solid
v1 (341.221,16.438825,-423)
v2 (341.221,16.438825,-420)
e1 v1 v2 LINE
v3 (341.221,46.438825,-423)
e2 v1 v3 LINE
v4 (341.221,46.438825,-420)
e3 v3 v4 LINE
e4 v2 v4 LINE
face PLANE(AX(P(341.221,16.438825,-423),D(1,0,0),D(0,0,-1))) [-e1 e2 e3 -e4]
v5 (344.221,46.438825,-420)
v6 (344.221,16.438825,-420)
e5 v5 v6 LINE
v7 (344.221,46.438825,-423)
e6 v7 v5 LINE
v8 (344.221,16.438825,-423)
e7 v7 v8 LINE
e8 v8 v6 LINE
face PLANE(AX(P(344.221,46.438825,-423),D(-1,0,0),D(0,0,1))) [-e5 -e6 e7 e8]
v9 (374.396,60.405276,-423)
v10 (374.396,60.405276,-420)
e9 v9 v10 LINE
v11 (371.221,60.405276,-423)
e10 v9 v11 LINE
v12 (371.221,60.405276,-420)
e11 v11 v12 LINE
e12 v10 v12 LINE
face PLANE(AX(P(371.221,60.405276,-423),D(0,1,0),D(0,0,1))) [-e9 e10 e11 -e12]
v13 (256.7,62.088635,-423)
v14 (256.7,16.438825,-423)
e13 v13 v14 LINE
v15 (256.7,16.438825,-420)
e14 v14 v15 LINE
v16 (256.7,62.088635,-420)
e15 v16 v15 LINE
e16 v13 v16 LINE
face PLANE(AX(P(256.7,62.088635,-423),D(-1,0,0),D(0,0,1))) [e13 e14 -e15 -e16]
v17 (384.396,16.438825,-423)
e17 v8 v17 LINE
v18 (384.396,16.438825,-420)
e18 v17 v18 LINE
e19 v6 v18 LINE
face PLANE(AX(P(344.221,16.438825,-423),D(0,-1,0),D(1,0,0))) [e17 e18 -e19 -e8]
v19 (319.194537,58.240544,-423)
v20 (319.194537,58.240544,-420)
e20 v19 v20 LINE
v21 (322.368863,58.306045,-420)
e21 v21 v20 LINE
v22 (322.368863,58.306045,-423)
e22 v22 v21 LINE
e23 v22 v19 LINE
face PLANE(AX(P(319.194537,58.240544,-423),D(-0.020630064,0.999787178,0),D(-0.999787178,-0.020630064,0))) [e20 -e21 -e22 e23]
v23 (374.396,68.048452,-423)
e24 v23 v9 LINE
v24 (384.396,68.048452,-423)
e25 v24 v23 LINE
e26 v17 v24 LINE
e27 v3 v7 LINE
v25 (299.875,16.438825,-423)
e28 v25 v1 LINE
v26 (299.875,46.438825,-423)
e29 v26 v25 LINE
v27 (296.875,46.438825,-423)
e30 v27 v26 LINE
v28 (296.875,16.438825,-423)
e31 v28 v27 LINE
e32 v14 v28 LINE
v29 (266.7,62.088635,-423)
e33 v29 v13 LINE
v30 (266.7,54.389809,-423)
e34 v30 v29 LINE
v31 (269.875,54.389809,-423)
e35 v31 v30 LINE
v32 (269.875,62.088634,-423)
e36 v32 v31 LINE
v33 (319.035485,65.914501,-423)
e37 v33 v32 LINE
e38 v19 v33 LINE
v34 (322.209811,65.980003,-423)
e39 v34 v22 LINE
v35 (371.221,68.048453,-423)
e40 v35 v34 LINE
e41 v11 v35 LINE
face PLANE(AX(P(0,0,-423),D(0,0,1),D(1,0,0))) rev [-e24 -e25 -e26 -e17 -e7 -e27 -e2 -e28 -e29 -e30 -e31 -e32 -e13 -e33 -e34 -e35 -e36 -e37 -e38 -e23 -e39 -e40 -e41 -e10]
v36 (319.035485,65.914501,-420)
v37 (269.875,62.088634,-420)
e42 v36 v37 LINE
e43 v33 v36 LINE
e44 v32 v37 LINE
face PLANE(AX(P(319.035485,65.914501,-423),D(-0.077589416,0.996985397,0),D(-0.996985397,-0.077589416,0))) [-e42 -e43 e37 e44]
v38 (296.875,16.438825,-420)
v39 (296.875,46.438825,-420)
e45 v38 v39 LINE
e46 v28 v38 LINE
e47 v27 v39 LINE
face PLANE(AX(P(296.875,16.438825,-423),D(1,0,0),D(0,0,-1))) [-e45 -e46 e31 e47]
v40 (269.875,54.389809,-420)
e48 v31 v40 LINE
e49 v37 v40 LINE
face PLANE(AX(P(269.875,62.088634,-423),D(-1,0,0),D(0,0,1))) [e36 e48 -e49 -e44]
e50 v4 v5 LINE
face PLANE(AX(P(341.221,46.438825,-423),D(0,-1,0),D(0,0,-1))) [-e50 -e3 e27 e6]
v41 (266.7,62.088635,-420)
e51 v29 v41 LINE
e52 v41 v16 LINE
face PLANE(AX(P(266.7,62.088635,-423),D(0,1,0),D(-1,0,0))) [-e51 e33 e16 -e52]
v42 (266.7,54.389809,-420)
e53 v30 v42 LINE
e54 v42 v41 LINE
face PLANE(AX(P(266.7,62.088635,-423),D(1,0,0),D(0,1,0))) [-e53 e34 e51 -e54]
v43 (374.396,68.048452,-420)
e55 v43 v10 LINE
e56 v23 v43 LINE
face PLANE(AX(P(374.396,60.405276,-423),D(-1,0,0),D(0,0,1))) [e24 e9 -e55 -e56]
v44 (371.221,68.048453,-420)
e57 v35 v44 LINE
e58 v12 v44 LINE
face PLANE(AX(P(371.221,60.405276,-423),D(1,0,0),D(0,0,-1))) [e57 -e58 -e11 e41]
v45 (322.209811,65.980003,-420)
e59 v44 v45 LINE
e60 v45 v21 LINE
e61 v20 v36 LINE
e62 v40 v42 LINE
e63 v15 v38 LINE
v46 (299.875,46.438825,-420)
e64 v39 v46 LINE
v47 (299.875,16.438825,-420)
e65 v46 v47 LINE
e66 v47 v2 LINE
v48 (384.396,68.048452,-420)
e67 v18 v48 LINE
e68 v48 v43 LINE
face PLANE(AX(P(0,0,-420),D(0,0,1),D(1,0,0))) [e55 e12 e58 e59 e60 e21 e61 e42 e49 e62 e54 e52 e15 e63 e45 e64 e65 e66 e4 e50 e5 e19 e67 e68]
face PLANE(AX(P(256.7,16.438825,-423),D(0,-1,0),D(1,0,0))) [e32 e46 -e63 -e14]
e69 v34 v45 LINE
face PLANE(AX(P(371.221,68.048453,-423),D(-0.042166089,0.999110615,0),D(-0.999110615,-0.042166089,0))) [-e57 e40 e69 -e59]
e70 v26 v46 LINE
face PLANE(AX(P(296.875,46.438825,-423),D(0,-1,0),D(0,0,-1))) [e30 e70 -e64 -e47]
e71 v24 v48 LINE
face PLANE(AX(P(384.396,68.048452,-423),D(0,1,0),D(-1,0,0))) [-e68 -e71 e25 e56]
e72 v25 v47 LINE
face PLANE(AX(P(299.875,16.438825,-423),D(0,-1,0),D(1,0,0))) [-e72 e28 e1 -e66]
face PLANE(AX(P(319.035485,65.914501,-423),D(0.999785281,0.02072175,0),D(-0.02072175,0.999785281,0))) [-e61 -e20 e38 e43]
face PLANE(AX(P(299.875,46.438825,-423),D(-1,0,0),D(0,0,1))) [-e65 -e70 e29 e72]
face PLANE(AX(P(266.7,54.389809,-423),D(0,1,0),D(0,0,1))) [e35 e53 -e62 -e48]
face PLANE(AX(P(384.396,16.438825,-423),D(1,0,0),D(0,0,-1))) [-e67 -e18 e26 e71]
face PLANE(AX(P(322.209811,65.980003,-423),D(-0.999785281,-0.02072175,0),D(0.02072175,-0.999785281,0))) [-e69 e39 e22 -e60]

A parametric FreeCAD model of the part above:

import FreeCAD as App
import Part
import Sketcher
from FreeCAD import Vector
Q = App.Units.Quantity

doc = App.newDocument("Part")
body = doc.addObject("PartDesign::Body", "Body")

# Sketch on XY plane
sketch1 = body.newObject("Sketcher::SketchObject", "Sketch")
sketch1.AttachmentSupport = (doc.getObject("XY_Plane"), [""])
sketch1.MapMode = "FlatFace"
sketch1.AttachmentOffset = App.Placement(Vector(0, 0, -420), App.Rotation())
sketch1.addGeometry([
    Part.LineSegment(Vector(374.4, 60.4, 0), Vector(371.2, 60.4, 0)),  # 0
    Part.LineSegment(Vector(371.2, 60.4, 0), Vector(371.2, 68, 0)),  # 1
    Part.LineSegment(Vector(371.2, 68, 0), Vector(322.2, 66, 0)),  # 2
    Part.LineSegment(Vector(322.2, 66, 0), Vector(322.4, 58.3, 0)),  # 3
    Part.LineSegment(Vector(322.4, 58.3, 0), Vector(319.2, 58.2, 0)),  # 4
    Part.LineSegment(Vector(319.2, 58.2, 0), Vector(319, 65.9, 0)),  # 5
    Part.LineSegment(Vector(319, 65.9, 0), Vector(269.9, 62.1, 0)),  # 6
    Part.LineSegment(Vector(269.9, 62.1, 0), Vector(269.9, 54.4, 0)),  # 7
    Part.LineSegment(Vector(269.9, 54.4, 0), Vector(266.7, 54.4, 0)),  # 8
    Part.LineSegment(Vector(266.7, 54.4, 0), Vector(266.7, 62.1, 0)),  # 9
    Part.LineSegment(Vector(266.7, 62.1, 0), Vector(256.7, 62.1, 0)),  # 10
    Part.LineSegment(Vector(256.7, 62.1, 0), Vector(256.7, 16.4, 0)),  # 11
    Part.LineSegment(Vector(256.7, 16.4, 0), Vector(296.9, 16.4, 0)),  # 12
    Part.LineSegment(Vector(296.9, 16.4, 0), Vector(296.9, 46.4, 0)),  # 13
    Part.LineSegment(Vector(296.9, 46.4, 0), Vector(299.9, 46.4, 0)),  # 14
    Part.LineSegment(Vector(299.9, 46.4, 0), Vector(299.9, 16.4, 0)),  # 15
    Part.LineSegment(Vector(299.9, 16.4, 0), Vector(341.2, 16.4, 0)),  # 16
    Part.LineSegment(Vector(341.2, 16.4, 0), Vector(341.2, 46.4, 0)),  # 17
    Part.LineSegment(Vector(341.2, 46.4, 0), Vector(344.2, 46.4, 0)),  # 18
    Part.LineSegment(Vector(344.2, 46.4, 0), Vector(344.2, 16.4, 0)),  # 19
    Part.LineSegment(Vector(344.2, 16.4, 0), Vector(384.4, 16.4, 0)),  # 20
    Part.LineSegment(Vector(384.4, 16.4, 0), Vector(384.4, 68, 0)),  # 21
    Part.LineSegment(Vector(384.4, 68, 0), Vector(374.4, 68, 0)),  # 22
    Part.LineSegment(Vector(374.4, 68, 0), Vector(374.4, 60.4, 0)),  # 23
], False)
sketch1.addConstraint([
    Sketcher.Constraint("Coincident", 0, 2, 1, 1),
    Sketcher.Constraint("Coincident", 1, 2, 2, 1),
    Sketcher.Constraint("Coincident", 2, 2, 3, 1),
    Sketcher.Constraint("Coincident", 3, 2, 4, 1),
    Sketcher.Constraint("Coincident", 4, 2, 5, 1),
    Sketcher.Constraint("Coincident", 5, 2, 6, 1),
    Sketcher.Constraint("Coincident", 6, 2, 7, 1),
    Sketcher.Constraint("Coincident", 7, 2, 8, 1),
    Sketcher.Constraint("Coincident", 8, 2, 9, 1),
    Sketcher.Constraint("Coincident", 9, 2, 10, 1),
    Sketcher.Constraint("Coincident", 10, 2, 11, 1),
    Sketcher.Constraint("Coincident", 11, 2, 12, 1),
    Sketcher.Constraint("Coincident", 12, 2, 13, 1),
    Sketcher.Constraint("Coincident", 13, 2, 14, 1),
    Sketcher.Constraint("Coincident", 14, 2, 15, 1),
    Sketcher.Constraint("Coincident", 15, 2, 16, 1),
    Sketcher.Constraint("Coincident", 16, 2, 17, 1),
    Sketcher.Constraint("Coincident", 17, 2, 18, 1),
    Sketcher.Constraint("Coincident", 18, 2, 19, 1),
    Sketcher.Constraint("Coincident", 19, 2, 20, 1),
    Sketcher.Constraint("Coincident", 20, 2, 21, 1),
    Sketcher.Constraint("Coincident", 21, 2, 22, 1),
    Sketcher.Constraint("Coincident", 22, 2, 23, 1),
    Sketcher.Constraint("Coincident", 23, 2, 0, 1),
    Sketcher.Constraint("Horizontal", 0),
    Sketcher.Constraint("Vertical", 1),
    Sketcher.Constraint("Vertical", 7),
    Sketcher.Constraint("Horizontal", 8),
    Sketcher.Constraint("Vertical", 9),
    Sketcher.Constraint("Horizontal", 10),
    Sketcher.Constraint("Vertical", 11),
    Sketcher.Constraint("Horizontal", 12),
    Sketcher.Constraint("Vertical", 13),
    Sketcher.Constraint("Horizontal", 14),
    Sketcher.Constraint("Vertical", 15),
    Sketcher.Constraint("Horizontal", 16),
    Sketcher.Constraint("Vertical", 17),
    Sketcher.Constraint("Horizontal", 18),
    Sketcher.Constraint("Vertical", 19),
    Sketcher.Constraint("Horizontal", 20),
    Sketcher.Constraint("Vertical", 21),
    Sketcher.Constraint("Horizontal", 22),
    Sketcher.Constraint("Vertical", 23),
    Sketcher.Constraint("Parallel", 3, 5),
    Sketcher.Constraint("Horizontal", 6, 2, 9, 2),
    Sketcher.Constraint("Horizontal", 12, 2, 15, 2),
    Sketcher.Constraint("Horizontal", 14, 2, 17, 2),
    Sketcher.Constraint("Horizontal", 16, 2, 19, 2),
    Sketcher.Constraint("Horizontal", 1, 2, 21, 2),
    Sketcher.Constraint("Equal", 0, 8),
    Sketcher.Constraint("Equal", 14, 18),
    Sketcher.Constraint("Equal", 12, 20),
    Sketcher.Constraint("Equal", 10, 22),
    Sketcher.Constraint("Equal", 3, 5),
    Sketcher.Constraint("DistanceX", 10, 2, 10, 1, Q("10 mm")),
    Sketcher.Constraint("DistanceX", 14, 1, 14, 2, Q("3 mm")),
    Sketcher.Constraint("DistanceY", 13, 1, 13, 2, Q("30 mm")),
    Sketcher.Constraint("DistanceX", 7, 2, 12, 2, Q("27 mm")),
    Sketcher.Constraint("DistanceX", -1, 1, 8, 2, Q("266.7 mm")),
    Sketcher.Constraint("Angle", 6, Q("-175.549981 deg")),
    Sketcher.Constraint("DistanceX", 0, 2, 0, 1, Q("3.175 mm")),
    Sketcher.Constraint("DistanceX", 16, 1, 16, 2, Q("41.346 mm")),
    Sketcher.Constraint("Distance", 4, Q("3.175001 mm")),
    Sketcher.Constraint("DistanceY", 11, 2, 11, 1, Q("45.649809 mm")),
    Sketcher.Constraint("DistanceY", -1, 1, 5, 2, Q("65.914501 mm")),
    Sketcher.Constraint("DistanceY", 4, 2, 3, 2, Q("0.0655 mm")),
    Sketcher.Constraint("DistanceY", 1, 1, 1, 2, Q("7.643178 mm")),
    Sketcher.Constraint("DistanceY", 7, 2, 7, 1, Q("7.698825 mm")),
    Sketcher.Constraint("DistanceY", 21, 1, 21, 2, Q("51.609627 mm")),
    Sketcher.Constraint("DistanceX", -1, 1, 2, 2, Q("322.209811 mm")),
    Sketcher.Constraint("DistanceY", 3, 2, 2, 2, Q("7.673959 mm")),
    Sketcher.Constraint("DistanceX", 5, 2, 4, 2, Q("0.159052 mm")),
])
pad1 = body.newObject("PartDesign::Pad", "Pad")
pad1.Profile = sketch1
pad1.Length = 3
pad1.Reversed = True

doc.recompute()
